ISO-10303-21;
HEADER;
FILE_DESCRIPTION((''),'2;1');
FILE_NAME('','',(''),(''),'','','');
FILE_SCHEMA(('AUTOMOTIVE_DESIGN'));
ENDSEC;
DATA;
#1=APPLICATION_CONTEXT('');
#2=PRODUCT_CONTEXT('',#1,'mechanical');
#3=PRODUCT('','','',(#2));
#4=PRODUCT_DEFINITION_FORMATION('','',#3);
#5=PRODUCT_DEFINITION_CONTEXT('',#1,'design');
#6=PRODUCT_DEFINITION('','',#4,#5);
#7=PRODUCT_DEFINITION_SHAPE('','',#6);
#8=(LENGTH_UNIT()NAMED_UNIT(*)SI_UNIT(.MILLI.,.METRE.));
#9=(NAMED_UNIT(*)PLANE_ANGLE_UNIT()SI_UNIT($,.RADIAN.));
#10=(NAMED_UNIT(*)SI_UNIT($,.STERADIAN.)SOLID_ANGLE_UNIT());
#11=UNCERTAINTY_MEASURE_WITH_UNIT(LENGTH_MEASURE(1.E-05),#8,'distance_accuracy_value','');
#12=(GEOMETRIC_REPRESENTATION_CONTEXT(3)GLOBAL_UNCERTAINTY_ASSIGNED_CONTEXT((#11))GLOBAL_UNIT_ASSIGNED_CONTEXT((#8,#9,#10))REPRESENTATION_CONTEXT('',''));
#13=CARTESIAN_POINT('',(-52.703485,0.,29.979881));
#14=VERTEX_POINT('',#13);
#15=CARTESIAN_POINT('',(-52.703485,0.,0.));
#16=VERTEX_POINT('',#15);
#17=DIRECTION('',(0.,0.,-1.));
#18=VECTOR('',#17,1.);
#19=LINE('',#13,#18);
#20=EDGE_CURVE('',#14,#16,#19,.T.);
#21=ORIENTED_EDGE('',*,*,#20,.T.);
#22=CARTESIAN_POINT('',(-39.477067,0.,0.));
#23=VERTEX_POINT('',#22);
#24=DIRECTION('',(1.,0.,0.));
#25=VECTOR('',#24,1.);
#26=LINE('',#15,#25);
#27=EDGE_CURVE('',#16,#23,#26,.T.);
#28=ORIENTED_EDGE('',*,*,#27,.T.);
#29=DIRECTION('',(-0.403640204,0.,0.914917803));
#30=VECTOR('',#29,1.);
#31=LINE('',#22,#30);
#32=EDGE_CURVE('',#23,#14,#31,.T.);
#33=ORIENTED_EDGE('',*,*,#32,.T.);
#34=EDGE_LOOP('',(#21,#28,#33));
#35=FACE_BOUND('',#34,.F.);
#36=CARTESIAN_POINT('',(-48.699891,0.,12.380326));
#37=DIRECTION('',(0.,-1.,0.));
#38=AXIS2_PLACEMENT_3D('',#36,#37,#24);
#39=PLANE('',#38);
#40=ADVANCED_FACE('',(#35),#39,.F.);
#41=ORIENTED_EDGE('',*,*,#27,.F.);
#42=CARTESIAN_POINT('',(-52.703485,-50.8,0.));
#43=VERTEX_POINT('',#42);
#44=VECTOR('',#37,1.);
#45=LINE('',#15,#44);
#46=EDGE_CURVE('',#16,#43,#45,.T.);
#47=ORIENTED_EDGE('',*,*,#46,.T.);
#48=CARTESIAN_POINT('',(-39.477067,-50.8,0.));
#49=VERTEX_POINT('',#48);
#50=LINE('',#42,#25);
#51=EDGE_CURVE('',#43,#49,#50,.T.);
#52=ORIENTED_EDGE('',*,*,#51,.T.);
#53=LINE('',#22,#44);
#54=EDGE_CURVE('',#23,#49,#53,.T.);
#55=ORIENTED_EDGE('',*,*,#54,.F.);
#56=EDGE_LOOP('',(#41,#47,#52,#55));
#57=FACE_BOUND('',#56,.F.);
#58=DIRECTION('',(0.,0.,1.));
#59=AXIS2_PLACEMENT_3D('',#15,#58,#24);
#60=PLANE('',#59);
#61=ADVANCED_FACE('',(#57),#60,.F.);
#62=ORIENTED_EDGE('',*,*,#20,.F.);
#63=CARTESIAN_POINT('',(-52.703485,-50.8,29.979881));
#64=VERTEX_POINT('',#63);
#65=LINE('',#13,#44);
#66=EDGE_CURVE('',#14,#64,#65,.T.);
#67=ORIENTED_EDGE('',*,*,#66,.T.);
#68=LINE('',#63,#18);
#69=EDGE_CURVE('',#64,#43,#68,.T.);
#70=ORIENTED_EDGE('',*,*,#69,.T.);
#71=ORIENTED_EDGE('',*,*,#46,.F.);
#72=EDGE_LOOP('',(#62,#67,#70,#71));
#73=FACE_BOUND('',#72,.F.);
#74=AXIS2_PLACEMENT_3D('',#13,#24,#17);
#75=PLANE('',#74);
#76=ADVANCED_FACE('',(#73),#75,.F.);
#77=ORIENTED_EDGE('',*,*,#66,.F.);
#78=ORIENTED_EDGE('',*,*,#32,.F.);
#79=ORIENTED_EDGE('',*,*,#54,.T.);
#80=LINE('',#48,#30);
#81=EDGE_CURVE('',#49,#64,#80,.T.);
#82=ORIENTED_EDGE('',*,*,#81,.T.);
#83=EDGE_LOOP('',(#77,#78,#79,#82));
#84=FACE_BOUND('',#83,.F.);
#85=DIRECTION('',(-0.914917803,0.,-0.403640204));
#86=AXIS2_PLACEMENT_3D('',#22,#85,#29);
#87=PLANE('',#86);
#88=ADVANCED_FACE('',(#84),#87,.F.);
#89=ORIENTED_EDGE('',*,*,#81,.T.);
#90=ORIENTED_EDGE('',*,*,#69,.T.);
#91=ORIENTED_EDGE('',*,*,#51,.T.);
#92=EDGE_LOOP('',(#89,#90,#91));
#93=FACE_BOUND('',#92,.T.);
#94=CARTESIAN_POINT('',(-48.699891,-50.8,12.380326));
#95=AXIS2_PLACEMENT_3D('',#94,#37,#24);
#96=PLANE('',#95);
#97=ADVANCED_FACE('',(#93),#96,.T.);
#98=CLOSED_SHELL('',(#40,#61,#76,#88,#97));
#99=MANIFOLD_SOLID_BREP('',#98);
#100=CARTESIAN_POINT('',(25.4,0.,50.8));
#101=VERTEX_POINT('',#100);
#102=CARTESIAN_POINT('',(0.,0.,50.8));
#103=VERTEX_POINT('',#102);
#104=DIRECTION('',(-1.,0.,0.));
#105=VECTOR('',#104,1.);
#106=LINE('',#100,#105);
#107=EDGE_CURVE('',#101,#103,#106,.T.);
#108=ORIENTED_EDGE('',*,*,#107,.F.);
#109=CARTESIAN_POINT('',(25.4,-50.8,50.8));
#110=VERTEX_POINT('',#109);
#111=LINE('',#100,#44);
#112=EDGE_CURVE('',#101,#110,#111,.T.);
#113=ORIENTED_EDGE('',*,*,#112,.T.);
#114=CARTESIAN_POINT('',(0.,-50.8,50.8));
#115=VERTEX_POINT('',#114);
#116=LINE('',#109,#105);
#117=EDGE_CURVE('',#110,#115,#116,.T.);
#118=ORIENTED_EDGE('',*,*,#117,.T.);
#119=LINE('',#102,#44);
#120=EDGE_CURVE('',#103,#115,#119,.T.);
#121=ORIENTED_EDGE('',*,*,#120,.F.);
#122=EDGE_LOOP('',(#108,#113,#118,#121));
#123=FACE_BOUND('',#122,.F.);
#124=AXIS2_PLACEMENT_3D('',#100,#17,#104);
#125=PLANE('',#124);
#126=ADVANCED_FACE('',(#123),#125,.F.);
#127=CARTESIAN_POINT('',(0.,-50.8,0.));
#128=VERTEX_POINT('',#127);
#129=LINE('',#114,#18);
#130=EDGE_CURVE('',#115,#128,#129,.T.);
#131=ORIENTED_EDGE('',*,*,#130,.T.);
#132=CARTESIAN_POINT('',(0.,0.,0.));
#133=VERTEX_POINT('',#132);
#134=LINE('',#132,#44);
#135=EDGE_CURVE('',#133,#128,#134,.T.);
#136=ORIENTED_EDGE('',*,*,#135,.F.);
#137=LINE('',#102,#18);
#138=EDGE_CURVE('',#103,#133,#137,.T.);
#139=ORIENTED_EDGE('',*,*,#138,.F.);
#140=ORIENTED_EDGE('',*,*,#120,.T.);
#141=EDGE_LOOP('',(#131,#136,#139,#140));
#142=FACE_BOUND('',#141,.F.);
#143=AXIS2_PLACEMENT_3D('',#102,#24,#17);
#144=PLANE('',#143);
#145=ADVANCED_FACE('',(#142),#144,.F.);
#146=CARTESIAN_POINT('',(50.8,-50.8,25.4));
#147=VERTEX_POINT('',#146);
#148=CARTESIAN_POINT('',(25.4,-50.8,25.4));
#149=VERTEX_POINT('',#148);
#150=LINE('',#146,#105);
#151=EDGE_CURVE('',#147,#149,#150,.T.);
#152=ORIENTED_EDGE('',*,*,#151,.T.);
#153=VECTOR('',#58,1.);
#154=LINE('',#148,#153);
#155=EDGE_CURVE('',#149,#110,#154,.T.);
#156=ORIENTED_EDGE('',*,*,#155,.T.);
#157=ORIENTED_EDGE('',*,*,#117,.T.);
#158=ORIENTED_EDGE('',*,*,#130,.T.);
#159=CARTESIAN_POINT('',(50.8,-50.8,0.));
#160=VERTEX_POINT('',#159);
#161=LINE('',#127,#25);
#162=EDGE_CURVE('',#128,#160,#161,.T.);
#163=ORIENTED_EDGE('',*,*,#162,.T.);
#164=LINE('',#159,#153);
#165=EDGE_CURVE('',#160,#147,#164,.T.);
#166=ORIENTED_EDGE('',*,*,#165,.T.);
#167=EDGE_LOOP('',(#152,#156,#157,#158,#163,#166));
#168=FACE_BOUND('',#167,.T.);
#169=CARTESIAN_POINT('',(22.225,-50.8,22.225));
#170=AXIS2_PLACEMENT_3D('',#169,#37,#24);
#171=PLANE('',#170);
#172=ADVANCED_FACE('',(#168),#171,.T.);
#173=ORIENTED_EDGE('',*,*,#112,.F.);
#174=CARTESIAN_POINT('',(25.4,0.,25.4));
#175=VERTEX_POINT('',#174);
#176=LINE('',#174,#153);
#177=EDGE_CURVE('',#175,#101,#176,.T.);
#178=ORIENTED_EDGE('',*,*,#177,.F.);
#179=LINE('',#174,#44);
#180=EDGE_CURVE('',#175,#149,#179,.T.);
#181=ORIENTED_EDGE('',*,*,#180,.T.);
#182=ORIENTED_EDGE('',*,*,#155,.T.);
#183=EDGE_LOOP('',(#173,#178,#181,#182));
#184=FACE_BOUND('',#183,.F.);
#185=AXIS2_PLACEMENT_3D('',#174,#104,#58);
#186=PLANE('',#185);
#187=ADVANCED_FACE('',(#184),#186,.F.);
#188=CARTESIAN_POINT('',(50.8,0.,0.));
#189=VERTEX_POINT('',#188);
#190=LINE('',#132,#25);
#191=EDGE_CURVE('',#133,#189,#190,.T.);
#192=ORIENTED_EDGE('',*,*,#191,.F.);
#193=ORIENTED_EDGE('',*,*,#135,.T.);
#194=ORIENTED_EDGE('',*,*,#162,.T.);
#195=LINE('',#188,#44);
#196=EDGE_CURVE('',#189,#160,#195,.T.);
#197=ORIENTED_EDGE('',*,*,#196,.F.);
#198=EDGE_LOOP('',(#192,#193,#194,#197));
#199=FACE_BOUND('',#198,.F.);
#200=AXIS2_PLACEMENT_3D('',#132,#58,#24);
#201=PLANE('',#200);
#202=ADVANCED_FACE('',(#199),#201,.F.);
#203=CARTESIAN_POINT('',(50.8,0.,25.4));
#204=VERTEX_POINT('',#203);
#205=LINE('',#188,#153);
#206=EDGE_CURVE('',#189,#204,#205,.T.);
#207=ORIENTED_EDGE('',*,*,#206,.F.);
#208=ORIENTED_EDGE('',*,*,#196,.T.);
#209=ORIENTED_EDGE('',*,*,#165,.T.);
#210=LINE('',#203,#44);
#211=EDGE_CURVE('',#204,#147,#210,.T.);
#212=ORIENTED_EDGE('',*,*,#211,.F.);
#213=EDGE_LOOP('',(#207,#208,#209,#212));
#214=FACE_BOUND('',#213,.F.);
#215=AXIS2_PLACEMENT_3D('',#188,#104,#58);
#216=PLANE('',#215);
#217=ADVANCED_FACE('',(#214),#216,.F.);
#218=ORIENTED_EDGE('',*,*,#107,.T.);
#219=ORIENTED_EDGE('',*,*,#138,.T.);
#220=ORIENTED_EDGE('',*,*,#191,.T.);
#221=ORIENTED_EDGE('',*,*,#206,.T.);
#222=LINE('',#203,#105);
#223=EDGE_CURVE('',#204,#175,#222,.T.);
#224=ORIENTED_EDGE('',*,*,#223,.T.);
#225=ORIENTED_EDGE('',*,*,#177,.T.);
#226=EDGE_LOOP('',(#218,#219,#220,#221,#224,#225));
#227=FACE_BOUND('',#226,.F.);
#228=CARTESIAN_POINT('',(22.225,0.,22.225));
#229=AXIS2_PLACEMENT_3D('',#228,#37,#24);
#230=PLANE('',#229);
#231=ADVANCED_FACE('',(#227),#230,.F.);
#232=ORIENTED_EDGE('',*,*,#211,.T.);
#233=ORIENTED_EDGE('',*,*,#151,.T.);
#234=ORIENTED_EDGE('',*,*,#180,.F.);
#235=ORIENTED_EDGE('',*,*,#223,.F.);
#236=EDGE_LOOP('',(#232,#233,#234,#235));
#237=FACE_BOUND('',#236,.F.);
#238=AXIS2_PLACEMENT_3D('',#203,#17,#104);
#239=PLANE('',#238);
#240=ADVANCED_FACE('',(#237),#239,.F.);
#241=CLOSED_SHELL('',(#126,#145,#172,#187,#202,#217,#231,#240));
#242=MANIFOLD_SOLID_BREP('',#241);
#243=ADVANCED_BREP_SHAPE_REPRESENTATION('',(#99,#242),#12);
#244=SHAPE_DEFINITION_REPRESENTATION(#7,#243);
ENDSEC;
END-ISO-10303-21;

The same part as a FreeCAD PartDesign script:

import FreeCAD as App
import Part
import Sketcher

V = App.Vector
Q = App.Units.Quantity

doc = App.newDocument("Part")
params = doc.addObject("Spreadsheet::Sheet", "Params")
for row, (alias, value) in enumerate([
    ("sketch1_width", "2 in"),
    ("pad1_length", "2 in"),
], start=1):
    params.set(f"A{row}", alias)
    params.set(f"B{row}", "=" + value)
    params.setAlias(f"B{row}", alias)

body = doc.addObject("PartDesign::Body", "Body")
body.AllowCompound = True

# Sketch on XZ plane
sketch1 = doc.addObject("Sketcher::SketchObject", "Sketch")
body.addObject(sketch1)
sketch1.AttachmentSupport = (doc.XZ_Plane, [""])
sketch1.MapMode = "FlatFace"
sketch1.addGeometry([
    Part.LineSegment(V(-53, 0, 0), V(-39, 0, 0)),  # 0
    Part.LineSegment(V(-39, 0, 0), V(-53, 30, 0)),  # 1
    Part.LineSegment(V(-53, 30, 0), V(-53, 0, 0)),  # 2
    Part.LineSegment(V(0, 51, 0), V(0, 0, 0)),  # 3
    Part.LineSegment(V(0, 0, 0), V(51, 0, 0)),  # 4
    Part.LineSegment(V(51, 0, 0), V(51, 25, 0)),  # 5
    Part.LineSegment(V(51, 25, 0), V(25, 25, 0)),  # 6
    Part.LineSegment(V(25, 25, 0), V(25, 51, 0)),  # 7
    Part.LineSegment(V(25, 51, 0), V(0, 51, 0)),  # 8
], False)
sketch1.addConstraint([
    Sketcher.Constraint("Coincident", 0, 2, 1, 1),
    Sketcher.Constraint("Coincident", 1, 2, 2, 1),
    Sketcher.Constraint("Coincident", 2, 2, 0, 1),
    Sketcher.Constraint("Coincident", 3, 2, 4, 1),
    Sketcher.Constraint("Coincident", 4, 2, 5, 1),
    Sketcher.Constraint("Coincident", 5, 2, 6, 1),
    Sketcher.Constraint("Coincident", 6, 2, 7, 1),
    Sketcher.Constraint("Coincident", 7, 2, 8, 1),
    Sketcher.Constraint("Coincident", 8, 2, 3, 1),
    Sketcher.Constraint("Horizontal", 0),
    Sketcher.Constraint("Vertical", 2),
    Sketcher.Constraint("Vertical", 3),
    Sketcher.Constraint("Horizontal", 4),
    Sketcher.Constraint("Vertical", 5),
    Sketcher.Constraint("Horizontal", 6),
    Sketcher.Constraint("Vertical", 7),
    Sketcher.Constraint("Horizontal", 8),
    Sketcher.Constraint("Coincident", 3, 2, -1, 1),
    Sketcher.Constraint("PointOnObject", 0, 2, -1),
    Sketcher.Constraint("Equal", 6, 8),
    Sketcher.Constraint("Equal", 4, 3),
    Sketcher.Constraint("Equal", 8, 5),
    Sketcher.Constraint("DistanceX", 4, 1, 4, 2, Q("2 in")),
    Sketcher.Constraint("DistanceX", 0, 1, 0, 2, 13.226418),
    Sketcher.Constraint("DistanceY", 2, 2, 2, 1, 29.979881),
    Sketcher.Constraint("DistanceX", 0, 2, -1, 1, 39.477067),
])
sketch1.setExpression("Constraints[22]", "Params.sketch1_width")
pad1 = doc.addObject("PartDesign::Pad", "Pad")
body.addObject(pad1)
pad1.Profile = sketch1
pad1.setExpression("Length", "Params.pad1_length")

doc.recompute()
